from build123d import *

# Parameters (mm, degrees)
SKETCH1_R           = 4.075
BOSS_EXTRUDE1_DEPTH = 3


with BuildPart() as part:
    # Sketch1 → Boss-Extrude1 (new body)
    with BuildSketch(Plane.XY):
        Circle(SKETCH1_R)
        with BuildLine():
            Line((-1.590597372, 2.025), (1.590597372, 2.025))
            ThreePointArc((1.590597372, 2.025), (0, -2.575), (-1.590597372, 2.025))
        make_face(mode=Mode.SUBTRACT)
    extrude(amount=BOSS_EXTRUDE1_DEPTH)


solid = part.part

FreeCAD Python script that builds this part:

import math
import FreeCAD as App
import Part
import Sketcher
Q = App.Units.Quantity

doc = App.newDocument("Part")
body = doc.addObject("PartDesign::Body", "Body")

# Sketch on XY plane
sketch1 = doc.addObject("Sketcher::SketchObject", "Sketch")
body.addObject(sketch1)
sketch1.AttachmentSupport = (doc.XY_Plane, [""])
sketch1.MapMode = "FlatFace"
sketch1.addGeometry(Part.Circle(App.Vector(0, 0, 0), App.Vector(0, 0, 1), 4.1), False)
sketch1.addGeometry(Part.ArcOfCircle(Part.Circle(App.Vector(0, 0, 0), App.Vector(0, 0, 1), 2.6), math.radians(128), math.radians(412)), False)
sketch1.addGeometry(Part.LineSegment(App.Vector(-1.6, 2, 0), App.Vector(1.6, 2, 0)), False)
sketch1.addConstraint(Sketcher.Constraint("Coincident", 1, 1, 2, 1))
sketch1.addConstraint(Sketcher.Constraint("Coincident", 2, 2, 1, 2))
sketch1.addConstraint(Sketcher.Constraint("Horizontal", 2))
sketch1.addConstraint(Sketcher.Constraint("Coincident", 0, 3, -1, 1))
sketch1.addConstraint(Sketcher.Constraint("Coincident", 1, 3, -1, 1))
sketch1.addConstraint(Sketcher.Constraint("Diameter", 0, Q("8.15 mm")))
sketch1.addConstraint(Sketcher.Constraint("Radius", 1, Q("2.575 mm")))
sketch1.addConstraint(Sketcher.Constraint("DistanceY", -1, 1, 1, 1, Q("2.025 mm")))
pad1 = doc.addObject("PartDesign::Pad", "Pad")
body.addObject(pad1)
pad1.Profile = sketch1
pad1.Length = 3

doc.recompute()
